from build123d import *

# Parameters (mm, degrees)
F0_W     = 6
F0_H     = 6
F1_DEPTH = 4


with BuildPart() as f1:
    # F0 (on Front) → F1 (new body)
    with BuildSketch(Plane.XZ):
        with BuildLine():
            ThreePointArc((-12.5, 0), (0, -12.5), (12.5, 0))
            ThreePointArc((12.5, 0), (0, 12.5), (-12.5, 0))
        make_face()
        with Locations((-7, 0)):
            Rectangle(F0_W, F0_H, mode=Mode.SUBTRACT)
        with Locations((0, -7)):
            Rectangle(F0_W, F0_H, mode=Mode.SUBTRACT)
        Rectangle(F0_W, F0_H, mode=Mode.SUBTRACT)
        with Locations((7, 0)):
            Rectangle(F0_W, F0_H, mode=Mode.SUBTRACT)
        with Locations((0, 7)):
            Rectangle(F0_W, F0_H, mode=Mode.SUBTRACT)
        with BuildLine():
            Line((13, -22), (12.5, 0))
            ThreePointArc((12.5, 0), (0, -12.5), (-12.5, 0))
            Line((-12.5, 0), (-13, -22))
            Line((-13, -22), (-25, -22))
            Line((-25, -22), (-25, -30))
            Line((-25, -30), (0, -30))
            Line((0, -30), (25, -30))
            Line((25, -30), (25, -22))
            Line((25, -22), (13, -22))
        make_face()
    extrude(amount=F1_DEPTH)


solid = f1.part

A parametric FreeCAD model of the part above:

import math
import FreeCAD as App
import Part
import Sketcher

V = App.Vector


def add_polygon(sketch, points):
    """Adds a closed chain of lines whose ends are joined by coincident constraints."""
    first, n = sketch.GeometryCount, len(points)
    for a, b in zip(points, points[1:] + points[:1]):
        sketch.addGeometry(Part.LineSegment(App.Vector(*a, 0), App.Vector(*b, 0)), False)
    for i in range(n):
        sketch.addConstraint(Sketcher.Constraint("Coincident", first + i, 2, first + (i + 1) % n, 1))

doc = App.newDocument("Part")
body = doc.addObject("PartDesign::Body", "Body")

sketch1 = body.newObject("Sketcher::SketchObject", "Sketch")
sketch1.AttachmentSupport = (doc.getObject("XZ_Plane"), [""])
sketch1.MapMode = "FlatFace"
sketch1.addGeometry(Part.ArcOfCircle(Part.Circle(V(0, 0, 0), V(0, 0, 1), 12), math.radians(0), math.radians(180)), False)
sketch1.addGeometry(Part.LineSegment(V(-12, 0, 0), V(-13, -22, 0)), False)
sketch1.addGeometry(Part.LineSegment(V(-13, -22, 0), V(-25, -22, 0)), False)
sketch1.addGeometry(Part.LineSegment(V(-25, -22, 0), V(-25, -30, 0)), False)
sketch1.addGeometry(Part.LineSegment(V(-25, -30, 0), V(25, -30, 0)), False)
sketch1.addGeometry(Part.LineSegment(V(25, -30, 0), V(25, -22, 0)), False)
sketch1.addGeometry(Part.LineSegment(V(25, -22, 0), V(13, -22, 0)), False)
sketch1.addGeometry(Part.LineSegment(V(13, -22, 0), V(12, 0, 0)), False)
add_polygon(sketch1, [(3, -10), (-3, -10), (-3, -4), (3, -4)])
add_polygon(sketch1, [(-4, -3), (-10, -3), (-10, 3), (-4, 3)])
add_polygon(sketch1, [(3, -3), (-3, -3), (-3, 3), (3, 3)])
add_polygon(sketch1, [(10, -3), (4, -3), (4, 3), (10, 3)])
add_polygon(sketch1, [(3, 4), (-3, 4), (-3, 10), (3, 10)])
sketch1.addConstraint([
    Sketcher.Constraint("Coincident", 0, 2, 1, 1),
    Sketcher.Constraint("Coincident", 1, 2, 2, 1),
    Sketcher.Constraint("Coincident", 2, 2, 3, 1),
    Sketcher.Constraint("Coincident", 3, 2, 4, 1),
    Sketcher.Constraint("Coincident", 4, 2, 5, 1),
    Sketcher.Constraint("Coincident", 5, 2, 6, 1),
    Sketcher.Constraint("Coincident", 6, 2, 7, 1),
    Sketcher.Constraint("Coincident", 7, 2, 0, 1),
    Sketcher.Constraint("Horizontal", 2),
    Sketcher.Constraint("Vertical", 3),
    Sketcher.Constraint("Horizontal", 4),
    Sketcher.Constraint("Vertical", 5),
    Sketcher.Constraint("Horizontal", 6),
    Sketcher.Constraint("Horizontal", 8),
    Sketcher.Constraint("Vertical", 9),
    Sketcher.Constraint("Horizontal", 10),
    Sketcher.Constraint("Vertical", 11),
    Sketcher.Constraint("Horizontal", 12),
    Sketcher.Constraint("Vertical", 13),
    Sketcher.Constraint("Horizontal", 14),
    Sketcher.Constraint("Vertical", 15),
    Sketcher.Constraint("Horizontal", 16),
    Sketcher.Constraint("Vertical", 17),
    Sketcher.Constraint("Horizontal", 18),
    Sketcher.Constraint("Vertical", 19),
    Sketcher.Constraint("Horizontal", 20),
    Sketcher.Constraint("Vertical", 21),
    Sketcher.Constraint("Horizontal", 22),
    Sketcher.Constraint("Vertical", 23),
    Sketcher.Constraint("Horizontal", 24),
    Sketcher.Constraint("Vertical", 25),
    Sketcher.Constraint("Horizontal", 26),
    Sketcher.Constraint("Vertical", 27),
    Sketcher.Constraint("Coincident", 0, 3, -1, 1),
    Sketcher.Constraint("Symmetric", 16, 2, 18, 2, -1, 1),
    Sketcher.Constraint("Symmetric", 14, 2, 20, 2, -1, 1),
    Sketcher.Constraint("Symmetric", 12, 2, 22, 2, -1, 1),
    Sketcher.Constraint("Symmetric", 10, 2, 24, 2, -1, 1),
    Sketcher.Constraint("Symmetric", 8, 2, 26, 2, -1, 1),
    Sketcher.Constraint("Symmetric", 2, 2, 5, 2, -2),
    Sketcher.Constraint("PointOnObject", 0, 2, -1),
    Sketcher.Constraint("PointOnObject", 7, 2, -1),
    Sketcher.Constraint("Horizontal", 15, 2, 16, 2),
    Sketcher.Constraint("Horizontal", 14, 2, 17, 2),
    Sketcher.Constraint("Vertical", 9, 2, 16, 2),
    Sketcher.Constraint("Vertical", 11, 2, 18, 2),
    Sketcher.Constraint("Equal", 2, 6),
    Sketcher.Constraint("Equal", 10, 12),
    Sketcher.Constraint("Equal", 26, 9),
    Sketcher.Constraint("Equal", 11, 13),
    Sketcher.Constraint("Radius", 0, 12.5),
    Sketcher.Constraint("DistanceX", 2, 2, 2, 1, 12.0),
    Sketcher.Constraint("DistanceX", 4, 1, 4, 2, 50.0),
    Sketcher.Constraint("DistanceX", 8, 2, 8, 1, 6.0),
    Sketcher.Constraint("DistanceY", 3, 2, 3, 1, 8.0),
    Sketcher.Constraint("DistanceY", 1, 2, -1, 1, 22.0),
    Sketcher.Constraint("DistanceY", 8, 2, -1, 1, 10.0),
    Sketcher.Constraint("DistanceX", 12, 2, -1, 1, 10.0),
])
pad1 = body.newObject("PartDesign::Pad", "Pad")
pad1.Profile = sketch1
pad1.Length = 4

doc.recompute()
